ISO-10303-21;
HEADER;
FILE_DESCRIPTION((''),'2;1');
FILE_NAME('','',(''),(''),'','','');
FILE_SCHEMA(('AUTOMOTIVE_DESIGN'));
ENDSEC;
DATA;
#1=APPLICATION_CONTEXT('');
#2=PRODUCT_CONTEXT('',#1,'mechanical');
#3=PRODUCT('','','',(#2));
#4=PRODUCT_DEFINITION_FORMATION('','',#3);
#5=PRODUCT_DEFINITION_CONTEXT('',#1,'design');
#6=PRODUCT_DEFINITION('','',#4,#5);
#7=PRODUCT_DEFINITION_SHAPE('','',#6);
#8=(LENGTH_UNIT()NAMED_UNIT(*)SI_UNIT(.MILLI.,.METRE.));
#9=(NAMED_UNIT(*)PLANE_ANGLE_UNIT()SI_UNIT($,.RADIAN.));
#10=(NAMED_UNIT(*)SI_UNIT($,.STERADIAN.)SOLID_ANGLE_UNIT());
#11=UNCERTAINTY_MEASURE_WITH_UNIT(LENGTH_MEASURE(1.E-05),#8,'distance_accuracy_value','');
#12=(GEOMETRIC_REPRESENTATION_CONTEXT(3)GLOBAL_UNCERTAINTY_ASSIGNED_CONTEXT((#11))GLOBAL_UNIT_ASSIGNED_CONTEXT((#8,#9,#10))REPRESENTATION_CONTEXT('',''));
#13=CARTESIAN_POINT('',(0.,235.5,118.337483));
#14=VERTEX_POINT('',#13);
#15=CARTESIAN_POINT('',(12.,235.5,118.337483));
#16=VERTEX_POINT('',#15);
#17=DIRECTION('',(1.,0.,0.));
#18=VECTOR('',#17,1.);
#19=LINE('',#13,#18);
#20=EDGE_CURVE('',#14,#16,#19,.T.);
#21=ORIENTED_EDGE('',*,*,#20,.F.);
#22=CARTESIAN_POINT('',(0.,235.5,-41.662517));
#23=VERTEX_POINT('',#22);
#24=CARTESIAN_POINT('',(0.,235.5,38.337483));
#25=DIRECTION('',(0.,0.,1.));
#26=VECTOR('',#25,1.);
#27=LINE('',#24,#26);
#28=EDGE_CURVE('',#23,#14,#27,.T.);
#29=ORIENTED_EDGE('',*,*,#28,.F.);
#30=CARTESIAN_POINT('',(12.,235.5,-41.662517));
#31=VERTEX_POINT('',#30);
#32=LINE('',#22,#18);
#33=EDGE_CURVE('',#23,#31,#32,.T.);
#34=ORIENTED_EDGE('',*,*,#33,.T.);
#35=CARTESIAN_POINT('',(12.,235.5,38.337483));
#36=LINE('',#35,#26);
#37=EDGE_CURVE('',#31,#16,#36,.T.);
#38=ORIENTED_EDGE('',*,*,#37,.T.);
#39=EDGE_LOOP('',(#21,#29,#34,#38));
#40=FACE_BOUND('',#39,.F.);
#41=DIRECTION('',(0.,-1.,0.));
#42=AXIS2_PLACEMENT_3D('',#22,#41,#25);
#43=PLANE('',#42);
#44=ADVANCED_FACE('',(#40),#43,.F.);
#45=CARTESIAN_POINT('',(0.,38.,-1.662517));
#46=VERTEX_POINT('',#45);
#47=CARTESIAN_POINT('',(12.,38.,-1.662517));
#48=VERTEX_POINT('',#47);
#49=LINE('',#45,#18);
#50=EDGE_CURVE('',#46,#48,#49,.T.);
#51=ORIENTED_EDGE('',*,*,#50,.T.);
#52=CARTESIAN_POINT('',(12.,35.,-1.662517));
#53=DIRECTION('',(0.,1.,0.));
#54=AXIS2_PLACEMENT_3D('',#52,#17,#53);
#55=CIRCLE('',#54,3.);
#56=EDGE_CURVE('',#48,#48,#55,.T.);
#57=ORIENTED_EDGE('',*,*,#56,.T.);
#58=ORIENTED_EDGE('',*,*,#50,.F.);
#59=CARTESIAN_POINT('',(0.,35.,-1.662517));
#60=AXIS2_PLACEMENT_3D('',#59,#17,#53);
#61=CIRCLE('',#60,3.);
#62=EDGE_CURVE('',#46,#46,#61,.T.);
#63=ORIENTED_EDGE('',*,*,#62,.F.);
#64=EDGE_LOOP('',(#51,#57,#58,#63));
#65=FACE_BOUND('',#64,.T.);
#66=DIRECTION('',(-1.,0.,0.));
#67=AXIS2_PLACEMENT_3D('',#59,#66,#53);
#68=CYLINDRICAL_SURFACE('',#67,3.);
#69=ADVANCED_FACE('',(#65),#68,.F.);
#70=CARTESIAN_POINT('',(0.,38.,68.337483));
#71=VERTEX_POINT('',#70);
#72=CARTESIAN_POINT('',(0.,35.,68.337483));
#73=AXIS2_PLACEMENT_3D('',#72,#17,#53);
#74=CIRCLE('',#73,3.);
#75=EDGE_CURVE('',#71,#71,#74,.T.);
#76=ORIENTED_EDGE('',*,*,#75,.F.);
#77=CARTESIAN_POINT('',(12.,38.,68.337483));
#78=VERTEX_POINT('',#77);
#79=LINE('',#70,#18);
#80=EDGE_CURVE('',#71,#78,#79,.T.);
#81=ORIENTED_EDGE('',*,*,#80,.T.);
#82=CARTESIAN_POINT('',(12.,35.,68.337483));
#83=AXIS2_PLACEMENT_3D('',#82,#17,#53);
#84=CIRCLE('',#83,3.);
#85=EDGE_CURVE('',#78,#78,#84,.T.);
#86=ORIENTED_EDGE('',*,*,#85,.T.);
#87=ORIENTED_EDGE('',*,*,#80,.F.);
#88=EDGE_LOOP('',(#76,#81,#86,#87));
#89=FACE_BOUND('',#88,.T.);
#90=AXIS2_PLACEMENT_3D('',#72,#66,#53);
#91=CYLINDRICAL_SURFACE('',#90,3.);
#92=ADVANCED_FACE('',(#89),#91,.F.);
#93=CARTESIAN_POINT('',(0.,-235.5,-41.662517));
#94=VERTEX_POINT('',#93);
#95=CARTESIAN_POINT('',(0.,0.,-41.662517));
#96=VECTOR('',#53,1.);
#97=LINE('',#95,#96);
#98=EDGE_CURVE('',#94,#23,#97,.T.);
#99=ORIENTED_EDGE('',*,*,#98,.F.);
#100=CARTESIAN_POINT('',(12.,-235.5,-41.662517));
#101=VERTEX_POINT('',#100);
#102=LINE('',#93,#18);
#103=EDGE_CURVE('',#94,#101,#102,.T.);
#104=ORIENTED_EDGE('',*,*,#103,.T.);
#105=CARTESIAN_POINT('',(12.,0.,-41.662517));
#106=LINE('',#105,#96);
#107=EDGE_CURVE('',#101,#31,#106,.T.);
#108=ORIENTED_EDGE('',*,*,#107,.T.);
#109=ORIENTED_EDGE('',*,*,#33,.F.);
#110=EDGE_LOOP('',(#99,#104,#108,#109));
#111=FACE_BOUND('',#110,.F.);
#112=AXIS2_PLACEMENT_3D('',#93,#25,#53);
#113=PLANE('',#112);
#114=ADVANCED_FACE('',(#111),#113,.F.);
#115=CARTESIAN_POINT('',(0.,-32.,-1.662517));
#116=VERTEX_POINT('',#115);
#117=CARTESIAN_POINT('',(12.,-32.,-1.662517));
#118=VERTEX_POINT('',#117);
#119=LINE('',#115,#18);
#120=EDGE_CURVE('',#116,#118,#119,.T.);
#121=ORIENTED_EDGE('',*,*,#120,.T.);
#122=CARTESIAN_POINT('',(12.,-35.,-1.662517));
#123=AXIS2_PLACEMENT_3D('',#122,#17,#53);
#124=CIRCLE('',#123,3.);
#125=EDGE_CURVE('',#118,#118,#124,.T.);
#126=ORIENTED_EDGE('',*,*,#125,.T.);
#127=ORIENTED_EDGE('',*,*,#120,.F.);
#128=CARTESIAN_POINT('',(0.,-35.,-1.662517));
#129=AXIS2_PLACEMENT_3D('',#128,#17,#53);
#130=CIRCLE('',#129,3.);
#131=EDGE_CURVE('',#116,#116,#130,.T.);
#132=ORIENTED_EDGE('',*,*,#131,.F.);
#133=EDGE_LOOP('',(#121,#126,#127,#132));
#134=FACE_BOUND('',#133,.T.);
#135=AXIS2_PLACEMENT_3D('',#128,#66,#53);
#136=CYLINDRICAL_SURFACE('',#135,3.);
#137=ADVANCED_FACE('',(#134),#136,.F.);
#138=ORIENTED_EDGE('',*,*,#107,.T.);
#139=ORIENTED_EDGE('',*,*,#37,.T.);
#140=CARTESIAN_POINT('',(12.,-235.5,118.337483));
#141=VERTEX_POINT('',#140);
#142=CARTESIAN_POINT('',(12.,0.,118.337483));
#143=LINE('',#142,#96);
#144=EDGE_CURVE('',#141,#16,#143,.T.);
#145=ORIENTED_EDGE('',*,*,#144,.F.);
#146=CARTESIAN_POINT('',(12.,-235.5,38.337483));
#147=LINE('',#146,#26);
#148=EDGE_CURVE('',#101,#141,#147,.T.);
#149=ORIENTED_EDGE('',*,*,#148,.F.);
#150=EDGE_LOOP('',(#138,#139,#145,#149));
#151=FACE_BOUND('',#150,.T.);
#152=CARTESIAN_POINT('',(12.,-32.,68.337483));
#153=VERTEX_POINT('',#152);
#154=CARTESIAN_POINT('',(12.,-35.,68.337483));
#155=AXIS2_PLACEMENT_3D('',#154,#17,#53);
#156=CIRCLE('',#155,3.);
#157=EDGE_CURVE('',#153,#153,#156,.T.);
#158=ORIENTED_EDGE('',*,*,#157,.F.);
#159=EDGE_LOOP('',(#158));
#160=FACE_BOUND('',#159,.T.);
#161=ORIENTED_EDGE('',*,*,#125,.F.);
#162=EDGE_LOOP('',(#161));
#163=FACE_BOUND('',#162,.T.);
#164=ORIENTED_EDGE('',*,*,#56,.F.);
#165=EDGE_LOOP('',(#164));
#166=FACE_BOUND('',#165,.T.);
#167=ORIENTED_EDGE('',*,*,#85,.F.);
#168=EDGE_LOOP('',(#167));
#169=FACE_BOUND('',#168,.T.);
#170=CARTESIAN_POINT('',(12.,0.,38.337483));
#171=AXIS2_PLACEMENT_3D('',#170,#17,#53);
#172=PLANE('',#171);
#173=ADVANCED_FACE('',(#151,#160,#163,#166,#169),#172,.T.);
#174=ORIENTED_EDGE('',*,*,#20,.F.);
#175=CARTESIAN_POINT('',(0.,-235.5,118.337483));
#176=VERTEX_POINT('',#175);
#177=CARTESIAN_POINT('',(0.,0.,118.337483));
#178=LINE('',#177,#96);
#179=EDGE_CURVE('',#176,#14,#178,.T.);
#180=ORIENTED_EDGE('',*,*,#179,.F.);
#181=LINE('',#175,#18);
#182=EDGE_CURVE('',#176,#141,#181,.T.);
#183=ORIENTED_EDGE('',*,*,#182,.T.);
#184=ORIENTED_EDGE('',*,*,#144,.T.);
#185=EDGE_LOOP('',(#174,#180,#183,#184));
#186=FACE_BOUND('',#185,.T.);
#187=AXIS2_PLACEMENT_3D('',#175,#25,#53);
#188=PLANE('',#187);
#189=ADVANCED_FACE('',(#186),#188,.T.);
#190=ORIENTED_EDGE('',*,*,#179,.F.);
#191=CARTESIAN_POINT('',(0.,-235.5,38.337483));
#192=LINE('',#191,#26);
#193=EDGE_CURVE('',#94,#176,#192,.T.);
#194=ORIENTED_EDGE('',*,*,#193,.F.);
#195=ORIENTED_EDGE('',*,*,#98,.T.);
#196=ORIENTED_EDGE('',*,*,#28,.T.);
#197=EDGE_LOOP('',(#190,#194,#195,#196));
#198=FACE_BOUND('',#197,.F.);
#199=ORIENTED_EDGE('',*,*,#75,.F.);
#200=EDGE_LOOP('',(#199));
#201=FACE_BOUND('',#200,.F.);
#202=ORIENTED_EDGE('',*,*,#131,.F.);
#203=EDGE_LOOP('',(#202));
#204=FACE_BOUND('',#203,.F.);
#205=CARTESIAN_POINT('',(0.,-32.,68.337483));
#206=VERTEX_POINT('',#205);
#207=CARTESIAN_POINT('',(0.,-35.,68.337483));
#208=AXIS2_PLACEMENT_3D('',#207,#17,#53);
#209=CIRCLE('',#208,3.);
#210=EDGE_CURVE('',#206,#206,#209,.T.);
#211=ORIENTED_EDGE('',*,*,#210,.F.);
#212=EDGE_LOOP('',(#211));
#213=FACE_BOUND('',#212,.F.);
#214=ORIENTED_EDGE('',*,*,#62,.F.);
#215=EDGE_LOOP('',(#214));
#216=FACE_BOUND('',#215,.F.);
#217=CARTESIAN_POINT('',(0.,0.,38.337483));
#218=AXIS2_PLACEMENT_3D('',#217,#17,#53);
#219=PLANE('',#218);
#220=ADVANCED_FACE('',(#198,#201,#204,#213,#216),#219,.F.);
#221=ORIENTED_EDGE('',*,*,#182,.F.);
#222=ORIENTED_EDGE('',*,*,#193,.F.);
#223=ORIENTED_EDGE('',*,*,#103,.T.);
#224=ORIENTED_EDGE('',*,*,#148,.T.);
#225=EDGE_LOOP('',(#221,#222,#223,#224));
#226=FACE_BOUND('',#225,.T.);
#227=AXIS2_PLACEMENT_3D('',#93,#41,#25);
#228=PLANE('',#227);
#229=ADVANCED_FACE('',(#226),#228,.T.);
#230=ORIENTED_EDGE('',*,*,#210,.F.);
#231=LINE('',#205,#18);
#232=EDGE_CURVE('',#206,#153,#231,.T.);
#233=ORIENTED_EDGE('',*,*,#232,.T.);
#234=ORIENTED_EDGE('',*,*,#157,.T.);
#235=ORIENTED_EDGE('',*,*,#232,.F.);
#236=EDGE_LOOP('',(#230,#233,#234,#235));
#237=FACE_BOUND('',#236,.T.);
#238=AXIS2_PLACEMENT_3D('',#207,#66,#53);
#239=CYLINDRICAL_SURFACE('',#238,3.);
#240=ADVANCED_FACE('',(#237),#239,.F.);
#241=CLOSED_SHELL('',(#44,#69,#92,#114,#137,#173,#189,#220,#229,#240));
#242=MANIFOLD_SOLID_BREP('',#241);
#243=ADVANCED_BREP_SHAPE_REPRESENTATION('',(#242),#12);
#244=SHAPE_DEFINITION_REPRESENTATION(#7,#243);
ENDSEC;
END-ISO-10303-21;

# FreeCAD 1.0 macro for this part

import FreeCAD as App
import Part
import Sketcher
from FreeCAD import Vector

doc = App.newDocument("Part")
body = doc.addObject("PartDesign::Body", "Body")

sketch1 = body.newObject("Sketcher::SketchObject", "Sketch")
sketch1.AttachmentSupport = (doc.getObject("YZ_Plane"), [""])
sketch1.MapMode = "FlatFace"
sketch1.addGeometry([
    Part.LineSegment(Vector(-235.5, 118.3, 0), Vector(-235.5, -41.7, 0)),
    Part.LineSegment(Vector(-235.5, -41.7, 0), Vector(235.5, -41.7, 0)),
    Part.LineSegment(Vector(235.5, -41.7, 0), Vector(235.5, 118.3, 0)),
    Part.LineSegment(Vector(235.5, 118.3, 0), Vector(-235.5, 118.3, 0)),
    Part.Circle(Vector(-35, -1.7, 0), Vector(0, 0, 1), 3),
    Part.Circle(Vector(35, -1.7, 0), Vector(0, 0, 1), 3),
    Part.Circle(Vector(-35, 68.3, 0), Vector(0, 0, 1), 3),
    Part.Circle(Vector(35, 68.3, 0), Vector(0, 0, 1), 3),
], False)
sketch1.addConstraint([
    Sketcher.Constraint("Coincident", 0, 2, 1, 1),
    Sketcher.Constraint("Coincident", 1, 2, 2, 1),
    Sketcher.Constraint("Coincident", 2, 2, 3, 1),
    Sketcher.Constraint("Coincident", 3, 2, 0, 1),
    Sketcher.Constraint("Vertical", 0),
    Sketcher.Constraint("Horizontal", 1),
    Sketcher.Constraint("Vertical", 2),
    Sketcher.Constraint("Horizontal", 3),
    Sketcher.Constraint("Equal", 4, 5),
    Sketcher.Constraint("Equal", 5, 6),
    Sketcher.Constraint("Equal", 6, 7),
    Sketcher.Constraint("Symmetric", 4, 3, 5, 3, -2),
    Sketcher.Constraint("Symmetric", 6, 3, 7, 3, -2),
    Sketcher.Constraint("Vertical", 4, 3, 6, 3),
    Sketcher.Constraint("Diameter", 4, 6.0),
    Sketcher.Constraint("DistanceX", 1, 1, 1, 2, 471.0),
    Sketcher.Constraint("DistanceY", 0, 2, 0, 1, 160.0),
    Sketcher.Constraint("DistanceX", 4, 3, -1, 1, 35.0),
    Sketcher.Constraint("DistanceY", 4, 3, 6, 3, 70.0),
    Sketcher.Constraint("DistanceY", 0, 2, 4, 3, 40.0),
    Sketcher.Constraint("DistanceX", 0, 2, -1, 1, 235.5),
    Sketcher.Constraint("DistanceY", 4, 3, -1, 1, 1.662517),
])
pad1 = body.newObject("PartDesign::Pad", "Pad")
pad1.Profile = sketch1
pad1.Length = 12

doc.recompute()
